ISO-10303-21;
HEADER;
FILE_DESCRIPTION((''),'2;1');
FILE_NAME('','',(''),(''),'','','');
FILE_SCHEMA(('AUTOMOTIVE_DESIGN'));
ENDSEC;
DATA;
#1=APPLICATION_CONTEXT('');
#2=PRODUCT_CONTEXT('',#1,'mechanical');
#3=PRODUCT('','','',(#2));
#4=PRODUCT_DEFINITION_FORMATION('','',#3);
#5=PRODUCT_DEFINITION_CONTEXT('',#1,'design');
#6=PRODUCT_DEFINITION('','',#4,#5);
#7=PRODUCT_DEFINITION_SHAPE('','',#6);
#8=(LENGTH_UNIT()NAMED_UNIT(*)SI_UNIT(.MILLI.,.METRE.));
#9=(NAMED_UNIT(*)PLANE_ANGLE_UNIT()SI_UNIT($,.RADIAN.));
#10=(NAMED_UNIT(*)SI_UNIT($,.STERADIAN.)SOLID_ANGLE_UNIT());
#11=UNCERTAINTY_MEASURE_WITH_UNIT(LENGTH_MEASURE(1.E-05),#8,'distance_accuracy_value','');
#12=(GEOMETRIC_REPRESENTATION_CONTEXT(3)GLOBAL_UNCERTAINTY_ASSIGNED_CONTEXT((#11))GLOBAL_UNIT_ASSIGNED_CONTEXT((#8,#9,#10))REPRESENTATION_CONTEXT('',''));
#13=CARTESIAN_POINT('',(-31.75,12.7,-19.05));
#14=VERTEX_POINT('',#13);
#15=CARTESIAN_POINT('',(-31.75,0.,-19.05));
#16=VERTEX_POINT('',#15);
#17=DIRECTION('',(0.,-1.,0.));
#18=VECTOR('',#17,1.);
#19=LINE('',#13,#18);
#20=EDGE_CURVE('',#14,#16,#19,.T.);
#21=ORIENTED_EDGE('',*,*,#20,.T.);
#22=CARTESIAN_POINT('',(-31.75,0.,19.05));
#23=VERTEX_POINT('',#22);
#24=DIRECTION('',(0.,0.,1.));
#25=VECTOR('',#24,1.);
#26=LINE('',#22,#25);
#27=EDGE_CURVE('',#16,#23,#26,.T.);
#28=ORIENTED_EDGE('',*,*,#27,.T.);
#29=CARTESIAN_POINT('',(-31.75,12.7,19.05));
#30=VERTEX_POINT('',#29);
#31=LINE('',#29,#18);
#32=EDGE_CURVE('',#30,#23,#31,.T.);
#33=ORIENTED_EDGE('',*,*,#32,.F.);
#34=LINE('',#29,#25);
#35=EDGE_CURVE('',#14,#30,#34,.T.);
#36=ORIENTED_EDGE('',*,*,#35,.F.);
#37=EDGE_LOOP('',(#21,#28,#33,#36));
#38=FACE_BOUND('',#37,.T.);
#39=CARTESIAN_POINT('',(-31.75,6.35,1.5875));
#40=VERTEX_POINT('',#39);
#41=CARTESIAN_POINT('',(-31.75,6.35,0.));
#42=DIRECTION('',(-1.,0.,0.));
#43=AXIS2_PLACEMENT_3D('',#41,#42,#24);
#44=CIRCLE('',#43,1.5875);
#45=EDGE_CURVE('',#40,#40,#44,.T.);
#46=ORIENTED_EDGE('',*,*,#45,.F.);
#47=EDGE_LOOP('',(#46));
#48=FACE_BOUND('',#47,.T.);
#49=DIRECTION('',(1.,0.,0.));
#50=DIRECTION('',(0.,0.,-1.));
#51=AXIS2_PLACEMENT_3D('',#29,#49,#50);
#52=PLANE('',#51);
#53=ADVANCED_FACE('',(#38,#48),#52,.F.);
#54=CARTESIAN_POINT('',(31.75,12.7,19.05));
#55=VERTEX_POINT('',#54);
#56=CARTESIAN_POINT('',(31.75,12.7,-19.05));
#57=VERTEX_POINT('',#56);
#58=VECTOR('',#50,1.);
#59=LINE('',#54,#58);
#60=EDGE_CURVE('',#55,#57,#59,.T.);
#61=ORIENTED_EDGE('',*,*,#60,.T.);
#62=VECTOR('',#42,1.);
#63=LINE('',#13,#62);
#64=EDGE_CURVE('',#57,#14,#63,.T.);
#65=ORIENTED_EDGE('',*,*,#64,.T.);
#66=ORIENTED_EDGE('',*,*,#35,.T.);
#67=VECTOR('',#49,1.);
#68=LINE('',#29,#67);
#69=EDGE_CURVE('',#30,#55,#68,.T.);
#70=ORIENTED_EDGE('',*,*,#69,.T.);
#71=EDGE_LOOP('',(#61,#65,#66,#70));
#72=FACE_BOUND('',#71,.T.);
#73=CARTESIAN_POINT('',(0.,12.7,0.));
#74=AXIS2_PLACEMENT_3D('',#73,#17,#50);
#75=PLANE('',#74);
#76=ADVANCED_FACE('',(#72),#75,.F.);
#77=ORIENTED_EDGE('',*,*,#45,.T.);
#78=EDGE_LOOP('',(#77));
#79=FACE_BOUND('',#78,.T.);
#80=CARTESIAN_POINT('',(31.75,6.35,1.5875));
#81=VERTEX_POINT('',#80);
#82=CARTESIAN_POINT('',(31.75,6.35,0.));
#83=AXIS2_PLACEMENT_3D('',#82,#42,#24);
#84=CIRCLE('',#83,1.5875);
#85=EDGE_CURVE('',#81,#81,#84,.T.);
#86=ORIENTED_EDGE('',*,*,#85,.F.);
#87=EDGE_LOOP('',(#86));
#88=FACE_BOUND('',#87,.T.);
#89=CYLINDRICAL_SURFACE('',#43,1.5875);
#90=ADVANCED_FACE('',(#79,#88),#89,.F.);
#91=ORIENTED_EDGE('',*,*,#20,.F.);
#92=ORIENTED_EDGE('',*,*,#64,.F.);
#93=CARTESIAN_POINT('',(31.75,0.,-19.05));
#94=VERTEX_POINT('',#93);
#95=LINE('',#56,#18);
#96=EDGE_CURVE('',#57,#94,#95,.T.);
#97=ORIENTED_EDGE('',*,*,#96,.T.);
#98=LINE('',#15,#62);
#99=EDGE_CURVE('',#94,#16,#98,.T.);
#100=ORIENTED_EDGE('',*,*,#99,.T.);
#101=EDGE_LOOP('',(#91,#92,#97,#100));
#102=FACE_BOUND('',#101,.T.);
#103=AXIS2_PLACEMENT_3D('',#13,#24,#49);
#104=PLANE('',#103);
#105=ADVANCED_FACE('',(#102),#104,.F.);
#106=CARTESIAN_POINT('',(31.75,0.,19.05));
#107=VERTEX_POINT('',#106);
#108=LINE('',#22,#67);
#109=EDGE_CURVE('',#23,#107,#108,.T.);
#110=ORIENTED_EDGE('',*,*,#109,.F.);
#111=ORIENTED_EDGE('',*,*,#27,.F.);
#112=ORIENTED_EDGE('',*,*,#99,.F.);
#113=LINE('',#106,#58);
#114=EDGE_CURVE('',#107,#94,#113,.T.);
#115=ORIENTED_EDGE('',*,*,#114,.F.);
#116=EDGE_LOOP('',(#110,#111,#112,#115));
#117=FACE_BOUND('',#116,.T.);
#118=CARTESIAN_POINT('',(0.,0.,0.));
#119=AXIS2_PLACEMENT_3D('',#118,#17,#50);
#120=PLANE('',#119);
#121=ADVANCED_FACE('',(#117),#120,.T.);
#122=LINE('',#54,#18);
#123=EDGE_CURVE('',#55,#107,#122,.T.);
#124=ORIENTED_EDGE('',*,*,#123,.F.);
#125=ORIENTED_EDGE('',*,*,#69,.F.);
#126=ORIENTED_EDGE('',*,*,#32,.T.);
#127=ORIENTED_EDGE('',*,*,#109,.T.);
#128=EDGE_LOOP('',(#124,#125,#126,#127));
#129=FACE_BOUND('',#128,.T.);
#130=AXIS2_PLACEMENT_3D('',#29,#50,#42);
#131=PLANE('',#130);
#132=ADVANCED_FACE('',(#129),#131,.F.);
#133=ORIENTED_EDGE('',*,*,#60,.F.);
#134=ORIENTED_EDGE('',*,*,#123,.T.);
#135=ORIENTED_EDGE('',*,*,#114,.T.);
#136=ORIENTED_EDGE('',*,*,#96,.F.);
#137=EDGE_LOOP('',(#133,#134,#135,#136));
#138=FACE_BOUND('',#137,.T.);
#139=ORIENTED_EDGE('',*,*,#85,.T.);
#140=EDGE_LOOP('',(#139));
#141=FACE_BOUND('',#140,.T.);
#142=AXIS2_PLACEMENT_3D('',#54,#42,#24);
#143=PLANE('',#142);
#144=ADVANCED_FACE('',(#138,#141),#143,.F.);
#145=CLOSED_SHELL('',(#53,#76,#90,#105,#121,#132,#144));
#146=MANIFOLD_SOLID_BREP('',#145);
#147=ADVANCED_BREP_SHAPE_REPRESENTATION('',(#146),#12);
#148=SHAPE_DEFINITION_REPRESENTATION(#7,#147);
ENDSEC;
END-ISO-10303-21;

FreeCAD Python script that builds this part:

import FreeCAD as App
import Part
import Sketcher

V = App.Vector
Q = App.Units.Quantity


def add_polygon(sketch, points):
    """Adds a closed chain of lines whose ends are joined by coincident constraints."""
    first, n = sketch.GeometryCount, len(points)
    for a, b in zip(points, points[1:] + points[:1]):
        sketch.addGeometry(Part.LineSegment(App.Vector(*a, 0), App.Vector(*b, 0)), False)
    for i in range(n):
        sketch.addConstraint(Sketcher.Constraint("Coincident", first + i, 2, first + (i + 1) % n, 1))

doc = App.newDocument("Part")
params = doc.addObject("Spreadsheet::Sheet", "Params")
for row, (alias, value) in enumerate([
    ("sketch1_width", "2.5 in"),
    ("sketch1_height", "1.5 in"),
    ("pad1_length", "0.5 in"),
    ("sketch2_diameter", "0.125 in"),
    ("hole_diameter", "0.125 in"),
], start=1):
    params.set(f"A{row}", alias)
    params.set(f"B{row}", "=" + value)
    params.setAlias(f"B{row}", alias)

body = doc.addObject("PartDesign::Body", "Body")

# Sketch on XZ plane
sketch1 = body.newObject("Sketcher::SketchObject", "Sketch")
sketch1.AttachmentSupport = (doc.getObject("XZ_Plane"), [""])
sketch1.MapMode = "FlatFace"
add_polygon(sketch1, [(-32, -19), (-32, 19), (32, 19), (32, -19)])  # lines 0-3
sketch1.addConstraint([
    Sketcher.Constraint("Vertical", 0),
    Sketcher.Constraint("Horizontal", 1),
    Sketcher.Constraint("Vertical", 2),
    Sketcher.Constraint("Horizontal", 3),
    Sketcher.Constraint("Symmetric", 0, 2, 2, 2, -1, 1),
    Sketcher.Constraint("DistanceX", 1, 1, 1, 2, Q("2.5 in")),
    Sketcher.Constraint("DistanceY", 0, 1, 0, 2, Q("1.5 in")),
])
sketch1.setExpression("Constraints[9]", "Params.sketch1_width")
sketch1.setExpression("Constraints[10]", "Params.sketch1_height")
pad1 = body.newObject("PartDesign::Pad", "Pad")
pad1.Profile = sketch1
pad1.setExpression("Length", "Params.pad1_length")
pad1.Reversed = True

# Sketch on YZ plane
sketch2 = body.newObject("Sketcher::SketchObject", "Sketch001")
sketch2.AttachmentSupport = (doc.getObject("YZ_Plane"), [""])
sketch2.MapMode = "FlatFace"
sketch2.AttachmentOffset = App.Placement(V(0, 0, -1.25 * 25.4), App.Rotation())
sketch2.addGeometry(Part.Circle(V(6.3, 0, 0), V(0, 0, 1), 1.6), False)
sketch2.addConstraint([
    Sketcher.Constraint("PointOnObject", 0, 3, -1),
    Sketcher.Constraint("Diameter", 0, Q("0.125 in")),
    Sketcher.Constraint("DistanceX", -1, 1, 0, 3, Q("0.25 in")),
])
sketch2.setExpression("Constraints[1]", "Params.sketch2_diameter")
doc.recompute()
hole = body.newObject("PartDesign::Hole", "Hole")
hole.Profile = sketch2
hole.ThreadType = "None"
hole.setExpression("Diameter", "Params.hole_diameter")
hole.DepthType = "ThroughAll"
hole.Reversed = True

doc.recompute()
